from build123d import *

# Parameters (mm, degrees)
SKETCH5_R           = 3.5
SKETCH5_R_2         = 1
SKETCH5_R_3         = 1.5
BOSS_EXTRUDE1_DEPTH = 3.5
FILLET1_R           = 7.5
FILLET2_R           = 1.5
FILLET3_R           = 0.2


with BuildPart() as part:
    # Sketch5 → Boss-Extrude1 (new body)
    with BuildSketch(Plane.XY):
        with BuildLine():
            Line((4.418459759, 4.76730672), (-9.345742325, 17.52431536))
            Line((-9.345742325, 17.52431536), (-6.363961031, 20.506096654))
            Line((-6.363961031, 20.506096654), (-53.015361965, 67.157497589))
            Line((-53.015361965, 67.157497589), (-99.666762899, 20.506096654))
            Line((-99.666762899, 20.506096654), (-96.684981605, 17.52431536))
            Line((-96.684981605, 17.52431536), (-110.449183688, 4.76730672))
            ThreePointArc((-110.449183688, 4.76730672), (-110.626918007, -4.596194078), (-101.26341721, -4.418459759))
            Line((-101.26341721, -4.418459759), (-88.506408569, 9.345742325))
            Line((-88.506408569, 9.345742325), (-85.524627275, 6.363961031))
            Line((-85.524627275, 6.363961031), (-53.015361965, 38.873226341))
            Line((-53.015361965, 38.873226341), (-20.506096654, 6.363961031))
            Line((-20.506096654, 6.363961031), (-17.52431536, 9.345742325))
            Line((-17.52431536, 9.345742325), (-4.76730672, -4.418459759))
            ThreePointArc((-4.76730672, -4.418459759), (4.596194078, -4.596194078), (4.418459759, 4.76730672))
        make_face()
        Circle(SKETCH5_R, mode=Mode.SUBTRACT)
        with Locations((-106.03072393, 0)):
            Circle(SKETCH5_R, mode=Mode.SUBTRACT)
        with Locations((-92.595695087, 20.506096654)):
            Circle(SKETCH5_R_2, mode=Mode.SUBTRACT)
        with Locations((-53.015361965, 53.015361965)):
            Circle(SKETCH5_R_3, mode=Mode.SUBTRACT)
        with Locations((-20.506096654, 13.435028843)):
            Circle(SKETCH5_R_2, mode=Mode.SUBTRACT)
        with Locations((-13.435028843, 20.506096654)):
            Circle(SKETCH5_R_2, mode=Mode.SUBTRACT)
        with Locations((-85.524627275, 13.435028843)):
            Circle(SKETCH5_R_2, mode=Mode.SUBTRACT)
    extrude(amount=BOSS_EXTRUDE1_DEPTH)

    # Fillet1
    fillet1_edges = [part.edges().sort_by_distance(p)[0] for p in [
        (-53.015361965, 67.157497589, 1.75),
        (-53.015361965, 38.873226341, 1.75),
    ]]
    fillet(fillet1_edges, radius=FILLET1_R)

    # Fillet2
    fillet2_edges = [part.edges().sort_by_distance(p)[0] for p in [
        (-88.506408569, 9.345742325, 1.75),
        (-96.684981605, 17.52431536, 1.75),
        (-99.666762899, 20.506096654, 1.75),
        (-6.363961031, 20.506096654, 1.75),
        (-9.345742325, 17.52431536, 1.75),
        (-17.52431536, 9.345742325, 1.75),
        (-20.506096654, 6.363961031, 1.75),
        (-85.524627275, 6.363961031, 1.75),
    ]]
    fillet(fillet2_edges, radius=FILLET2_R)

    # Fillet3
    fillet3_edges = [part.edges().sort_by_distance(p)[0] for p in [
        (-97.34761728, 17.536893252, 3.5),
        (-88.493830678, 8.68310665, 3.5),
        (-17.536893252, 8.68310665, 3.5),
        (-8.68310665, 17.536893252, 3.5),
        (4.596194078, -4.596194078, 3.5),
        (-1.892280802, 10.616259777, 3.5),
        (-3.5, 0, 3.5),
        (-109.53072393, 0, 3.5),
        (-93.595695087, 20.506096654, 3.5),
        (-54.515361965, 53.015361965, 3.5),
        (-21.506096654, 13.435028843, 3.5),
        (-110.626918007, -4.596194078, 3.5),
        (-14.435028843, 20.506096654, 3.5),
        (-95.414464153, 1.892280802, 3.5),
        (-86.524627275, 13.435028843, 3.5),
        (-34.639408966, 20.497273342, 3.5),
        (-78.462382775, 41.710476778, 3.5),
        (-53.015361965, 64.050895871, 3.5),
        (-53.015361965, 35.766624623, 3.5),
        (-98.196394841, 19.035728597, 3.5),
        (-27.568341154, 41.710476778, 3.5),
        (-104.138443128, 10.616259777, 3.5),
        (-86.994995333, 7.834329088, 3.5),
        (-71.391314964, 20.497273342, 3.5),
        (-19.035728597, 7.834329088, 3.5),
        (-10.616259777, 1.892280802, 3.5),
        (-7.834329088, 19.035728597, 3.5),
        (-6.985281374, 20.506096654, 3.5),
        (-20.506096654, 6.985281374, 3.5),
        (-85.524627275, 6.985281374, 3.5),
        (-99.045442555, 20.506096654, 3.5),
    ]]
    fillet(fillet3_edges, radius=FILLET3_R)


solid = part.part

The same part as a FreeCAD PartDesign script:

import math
import FreeCAD as App
import Part
import Sketcher
from FreeCAD import Vector
Q = App.Units.Quantity


def edges_at(feature, points):
    """Names of the edges that pass closest to the given points."""
    edges = feature.Shape.Edges
    near = lambda p: min(range(len(edges)), key=lambda i: edges[i].distToShape(Part.Vertex(*p))[0])
    return sorted({f"Edge{near(p) + 1}" for p in points})

doc = App.newDocument("Part")
body = doc.addObject("PartDesign::Body", "Body")

# Sketch on XY plane
sketch1 = body.newObject("Sketcher::SketchObject", "Sketch")
sketch1.AttachmentSupport = (doc.getObject("XY_Plane"), [""])
sketch1.MapMode = "FlatFace"
sketch1.addGeometry([
    Part.LineSegment(Vector(4.41846, 4.767307, 0), Vector(-9.345742, 17.524315, 0)),  # 0
    Part.LineSegment(Vector(-9.345742, 17.524315, 0), Vector(-6.363961, 20.506097, 0)),  # 1
    Part.LineSegment(Vector(-6.363961, 20.506097, 0), Vector(-53.015362, 67.157498, 0)),  # 2
    Part.LineSegment(Vector(-53.015362, 67.157498, 0), Vector(-99.666763, 20.506097, 0)),  # 3
    Part.LineSegment(Vector(-99.666763, 20.506097, 0), Vector(-96.684982, 17.524315, 0)),  # 4
    Part.LineSegment(Vector(-96.684982, 17.524315, 0), Vector(-110.449184, 4.767307, 0)),  # 5
    Part.ArcOfCircle(Part.Circle(Vector(-106.030724, 0, 0), Vector(0, 0, 1), 6.5), math.radians(132.825129), math.radians(317.174871)),  # 6
    Part.LineSegment(Vector(-101.263417, -4.41846, 0), Vector(-88.506409, 9.345742, 0)),  # 7
    Part.LineSegment(Vector(-88.506409, 9.345742, 0), Vector(-85.524627, 6.363961, 0)),  # 8
    Part.LineSegment(Vector(-85.524627, 6.363961, 0), Vector(-53.015362, 38.873226, 0)),  # 9
    Part.LineSegment(Vector(-53.015362, 38.873226, 0), Vector(-20.506097, 6.363961, 0)),  # 10
    Part.LineSegment(Vector(-20.506097, 6.363961, 0), Vector(-17.524315, 9.345742, 0)),  # 11
    Part.LineSegment(Vector(-17.524315, 9.345742, 0), Vector(-4.767307, -4.41846, 0)),  # 12
    Part.ArcOfCircle(Part.Circle(Vector(0, 0, 0), Vector(0, 0, 1), 6.5), math.radians(-137.174871), math.radians(47.174871)),  # 13
    Part.Circle(Vector(-106.030724, 0, 0), Vector(0, 0, 1), 3.5),  # 14
    Part.Circle(Vector(-85.524627, 13.435029, 0), Vector(0, 0, 1), 1),  # 15
    Part.Circle(Vector(-92.595695, 20.506097, 0), Vector(0, 0, 1), 1),  # 16
    Part.Circle(Vector(0, 0, 0), Vector(0, 0, 1), 3.5),  # 17
    Part.Circle(Vector(-20.506097, 13.435029, 0), Vector(0, 0, 1), 1),  # 18
    Part.Circle(Vector(-13.435029, 20.506097, 0), Vector(0, 0, 1), 1),  # 19
    Part.Circle(Vector(-53.015362, 53.015362, 0), Vector(0, 0, 1), 1.5),  # 20
], False)
sketch1.addConstraint([
    Sketcher.Constraint("Coincident", 0, 2, 1, 1),
    Sketcher.Constraint("Coincident", 1, 2, 2, 1),
    Sketcher.Constraint("Coincident", 2, 2, 3, 1),
    Sketcher.Constraint("Coincident", 3, 2, 4, 1),
    Sketcher.Constraint("Coincident", 4, 2, 5, 1),
    Sketcher.Constraint("Tangent", 5, 2, 6, 1),
    Sketcher.Constraint("Tangent", 6, 2, 7, 1),
    Sketcher.Constraint("Coincident", 7, 2, 8, 1),
    Sketcher.Constraint("Coincident", 8, 2, 9, 1),
    Sketcher.Constraint("Coincident", 9, 2, 10, 1),
    Sketcher.Constraint("Coincident", 10, 2, 11, 1),
    Sketcher.Constraint("Coincident", 11, 2, 12, 1),
    Sketcher.Constraint("Tangent", 12, 2, 13, 1),
    Sketcher.Constraint("Tangent", 13, 2, 0, 1),
    Sketcher.Constraint("Coincident", 13, 3, -1, 1),
    Sketcher.Constraint("Coincident", 17, 3, -1, 1),
    Sketcher.Constraint("Coincident", 14, 3, 6, 3),
    Sketcher.Constraint("Equal", 6, 13),
    Sketcher.Constraint("Equal", 15, 16),
    Sketcher.Constraint("Equal", 14, 17),
    Sketcher.Constraint("Equal", 16, 18),
    Sketcher.Constraint("Equal", 18, 19),
    Sketcher.Constraint("PointOnObject", 6, 3, -1),
    Sketcher.Constraint("Perpendicular", 1, 2),
    Sketcher.Constraint("Perpendicular", 2, 3),
    Sketcher.Constraint("Perpendicular", 3, 4),
    Sketcher.Constraint("Perpendicular", 0, 7),
    Sketcher.Constraint("Parallel", 4, 8),
    Sketcher.Constraint("Perpendicular", 8, 9),
    Sketcher.Constraint("Perpendicular", 9, 10),
    Sketcher.Constraint("Perpendicular", 10, 11),
    Sketcher.Constraint("Perpendicular", 5, 12),
    Sketcher.Constraint("Horizontal", 15, 3, 18, 3),
    Sketcher.Constraint("Horizontal", 16, 3, 19, 3),
    Sketcher.Constraint("Horizontal", 19, 3, 1, 2),
    Sketcher.Constraint("Horizontal", 1, 2, 3, 2),
    Sketcher.Constraint("Horizontal", 0, 2, 4, 2),
    Sketcher.Constraint("Horizontal", 8, 2, 10, 2),
    Sketcher.Constraint("Horizontal", 7, 2, 11, 2),
    Sketcher.Constraint("Horizontal", 6, 2, 12, 2),
    Sketcher.Constraint("Vertical", 20, 3, 2, 2),
    Sketcher.Constraint("Vertical", 15, 3, 8, 2),
    Sketcher.Constraint("Vertical", 2, 2, 9, 2),
    Sketcher.Constraint("Vertical", 18, 3, 10, 2),
    Sketcher.Constraint("Equal", 5, 7),
    Sketcher.Constraint("Equal", 4, 8),
    Sketcher.Constraint("Diameter", 14, Q("7 mm")),
    Sketcher.Constraint("Diameter", 15, Q("2 mm")),
    Sketcher.Constraint("Diameter", 20, Q("3 mm")),
    Sketcher.Constraint("Radius", 6, Q("6.5 mm")),
    Sketcher.Constraint("DistanceX", 16, 3, 18, 3, Q("72.089598 mm")),
    Sketcher.Constraint("DistanceX", 15, 3, 19, 3, Q("72.089598 mm")),
    Sketcher.Constraint("DistanceY", 16, 3, 2, 2, Q("46.651401 mm")),
    Sketcher.Constraint("DistanceY", -1, 1, 15, 3, Q("13.435029 mm")),
    Sketcher.Constraint("DistanceX", 19, 3, -1, 1, Q("13.435029 mm")),
    Sketcher.Constraint("DistanceX", 20, 3, -1, 1, Q("53.015362 mm")),
    Sketcher.Constraint("DistanceY", -1, 1, 20, 3, Q("53.015362 mm")),
    Sketcher.Constraint("DistanceX", 4, 2, -1, 1, Q("96.684982 mm")),
])
pad1 = body.newObject("PartDesign::Pad", "Pad")
pad1.Profile = sketch1
pad1.Length = 3.5
doc.recompute()

fillet = body.newObject("PartDesign::Fillet", "Fillet")
fillet.Base = (pad1, edges_at(pad1, [(-53.015, 67.157, 1.75), (-53.015, 38.873, 1.75)]))
fillet.Radius = 7.5
doc.recompute()

fillet2 = body.newObject("PartDesign::Fillet", "Fillet001")
fillet2.Base = (fillet, edges_at(fillet, [
    (-88.506, 9.346, 1.75),
    (-96.685, 17.524, 1.75),
    (-99.667, 20.506, 1.75),
    (-6.364, 20.506, 1.75),
    (-9.346, 17.524, 1.75),
    (-17.524, 9.346, 1.75),
    (-20.506, 6.364, 1.75),
    (-85.525, 6.364, 1.75),
]))
fillet2.Radius = 1.5
doc.recompute()

fillet3 = body.newObject("PartDesign::Fillet", "Fillet002")
fillet3.Base = (fillet2, edges_at(fillet2, [
    (-97.348, 17.537, 3.5),
    (-88.494, 8.683, 3.5),
    (-17.537, 8.683, 3.5),
    (-8.683, 17.537, 3.5),
    (4.596, -4.596, 3.5),
    (-1.892, 10.616, 3.5),
    (-3.5, 0, 3.5),
    (-109.531, 0, 3.5),
    (-93.596, 20.506, 3.5),
    (-54.515, 53.015, 3.5),
    (-21.506, 13.435, 3.5),
    (-110.627, -4.596, 3.5),
    (-14.435, 20.506, 3.5),
    (-95.414, 1.892, 3.5),
    (-86.525, 13.435, 3.5),
    (-34.639, 20.497, 3.5),
    (-78.462, 41.71, 3.5),
    (-53.015, 64.051, 3.5),
    (-53.015, 35.767, 3.5),
    (-98.196, 19.036, 3.5),
    (-27.568, 41.71, 3.5),
    (-104.138, 10.616, 3.5),
    (-86.995, 7.834, 3.5),
    (-71.391, 20.497, 3.5),
    (-19.036, 7.834, 3.5),
    (-10.616, 1.892, 3.5),
    (-7.834, 19.036, 3.5),
    (-6.985, 20.506, 3.5),
    (-20.506, 6.985, 3.5),
    (-85.525, 6.985, 3.5),
    (-99.045, 20.506, 3.5),
]))
fillet3.Radius = 0.2

doc.recompute()
